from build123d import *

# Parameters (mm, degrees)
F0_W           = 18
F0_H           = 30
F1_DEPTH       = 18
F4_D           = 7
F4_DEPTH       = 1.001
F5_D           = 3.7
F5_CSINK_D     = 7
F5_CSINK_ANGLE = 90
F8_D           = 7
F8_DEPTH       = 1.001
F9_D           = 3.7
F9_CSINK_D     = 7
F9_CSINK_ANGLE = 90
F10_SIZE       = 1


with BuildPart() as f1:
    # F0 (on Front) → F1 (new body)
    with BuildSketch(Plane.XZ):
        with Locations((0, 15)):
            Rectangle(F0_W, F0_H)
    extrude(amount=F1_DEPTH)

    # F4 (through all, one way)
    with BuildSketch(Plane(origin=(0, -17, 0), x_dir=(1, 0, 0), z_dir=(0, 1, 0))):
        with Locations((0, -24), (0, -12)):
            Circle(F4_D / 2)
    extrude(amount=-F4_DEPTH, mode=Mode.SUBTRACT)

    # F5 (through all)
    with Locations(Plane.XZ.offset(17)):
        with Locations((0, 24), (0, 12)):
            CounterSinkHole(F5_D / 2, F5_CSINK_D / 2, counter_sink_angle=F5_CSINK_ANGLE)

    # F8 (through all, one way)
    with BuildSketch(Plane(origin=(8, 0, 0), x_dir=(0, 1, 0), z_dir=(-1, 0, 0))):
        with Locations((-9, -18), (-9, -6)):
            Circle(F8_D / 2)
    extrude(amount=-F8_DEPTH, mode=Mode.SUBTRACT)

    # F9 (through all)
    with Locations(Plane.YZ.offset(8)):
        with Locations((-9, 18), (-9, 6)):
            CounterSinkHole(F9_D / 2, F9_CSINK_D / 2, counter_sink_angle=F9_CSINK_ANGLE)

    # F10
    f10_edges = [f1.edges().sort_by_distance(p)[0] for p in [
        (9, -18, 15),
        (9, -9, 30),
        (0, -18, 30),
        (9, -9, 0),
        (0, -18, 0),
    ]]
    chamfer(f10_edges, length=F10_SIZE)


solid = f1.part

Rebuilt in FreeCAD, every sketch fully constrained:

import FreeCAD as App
import Part
import Sketcher
Q = App.Units.Quantity


def edges_at(feature, points):
    """Names of the edges that pass closest to the given points."""
    edges = feature.Shape.Edges
    near = lambda p: min(range(len(edges)), key=lambda i: edges[i].distToShape(Part.Vertex(*p))[0])
    return sorted({f"Edge{near(p) + 1}" for p in points})

doc = App.newDocument("Part")
body = doc.addObject("PartDesign::Body", "Body")

# Sketch on XZ plane
sketch1 = body.newObject("Sketcher::SketchObject", "Sketch")
sketch1.AttachmentSupport = (doc.getObject("XZ_Plane"), [""])
sketch1.MapMode = "FlatFace"
sketch1.addGeometry([
    Part.LineSegment(App.Vector(-9, 30, 0), App.Vector(-9, 0, 0)),
    Part.LineSegment(App.Vector(-9, 0, 0), App.Vector(9, 0, 0)),
    Part.LineSegment(App.Vector(9, 0, 0), App.Vector(9, 30, 0)),
    Part.LineSegment(App.Vector(9, 30, 0), App.Vector(-9, 30, 0)),
], False)
sketch1.addConstraint([
    Sketcher.Constraint("Coincident", 0, 2, 1, 1),
    Sketcher.Constraint("Coincident", 1, 2, 2, 1),
    Sketcher.Constraint("Coincident", 2, 2, 3, 1),
    Sketcher.Constraint("Coincident", 3, 2, 0, 1),
    Sketcher.Constraint("Vertical", 0),
    Sketcher.Constraint("Horizontal", 1),
    Sketcher.Constraint("Vertical", 2),
    Sketcher.Constraint("Horizontal", 3),
    Sketcher.Constraint("Symmetric", 0, 2, 1, 2, -1, 1),
    Sketcher.Constraint("DistanceX", 1, 1, 1, 2, Q("18 mm")),
    Sketcher.Constraint("DistanceY", 0, 2, 0, 1, Q("30 mm")),
])
pad1 = body.newObject("PartDesign::Pad", "Pad")
pad1.Profile = sketch1
pad1.Length = 18

# Sketch on XZ plane
sketch2 = body.newObject("Sketcher::SketchObject", "Sketch001")
sketch2.AttachmentSupport = (doc.getObject("XZ_Plane"), [""])
sketch2.MapMode = "FlatFace"
sketch2.AttachmentOffset = App.Placement(App.Vector(0, 0, 17), App.Rotation())
sketch2.addGeometry([
    Part.Circle(App.Vector(0, 12, 0), App.Vector(0, 0, 1), 3.5),
    Part.Circle(App.Vector(0, 24, 0), App.Vector(0, 0, 1), 3.5),
], False)
sketch2.addConstraint([
    Sketcher.Constraint("Equal", 0, 1),
    Sketcher.Constraint("PointOnObject", 0, 3, -2),
    Sketcher.Constraint("PointOnObject", 1, 3, -2),
    Sketcher.Constraint("Diameter", 0, Q("7 mm")),
    Sketcher.Constraint("DistanceY", -1, 1, 0, 3, Q("12 mm")),
    Sketcher.Constraint("DistanceY", -1, 1, 1, 3, Q("24 mm")),
])
pocket1 = body.newObject("PartDesign::Pocket", "Pocket")
pocket1.Profile = sketch2
pocket1.Type = "ThroughAll"
pocket1.Reversed = True

# Sketch on XZ plane
sketch3 = body.newObject("Sketcher::SketchObject", "Sketch002")
sketch3.AttachmentSupport = (doc.getObject("XZ_Plane"), [""])
sketch3.MapMode = "FlatFace"
sketch3.AttachmentOffset = App.Placement(App.Vector(0, 0, 17), App.Rotation())
sketch3.addGeometry([
    Part.Circle(App.Vector(0, 24, 0), App.Vector(0, 0, 1), 1.85),
    Part.Circle(App.Vector(0, 12, 0), App.Vector(0, 0, 1), 1.85),
], False)
sketch3.addConstraint([
    Sketcher.Constraint("Equal", 0, 1),
    Sketcher.Constraint("PointOnObject", 0, 3, -2),
    Sketcher.Constraint("PointOnObject", 1, 3, -2),
    Sketcher.Constraint("Diameter", 0, Q("3.7 mm")),
    Sketcher.Constraint("DistanceY", -1, 1, 0, 3, Q("24 mm")),
    Sketcher.Constraint("DistanceY", -1, 1, 1, 3, Q("12 mm")),
])
doc.recompute()
hole = body.newObject("PartDesign::Hole", "Hole")
hole.Profile = sketch3
hole.ThreadType = "None"
hole.Diameter = 3.7
hole.DepthType = "ThroughAll"
hole.HoleCutType = "Countersink"
hole.HoleCutDiameter = 7
hole.HoleCutCountersinkAngle = 90

# Sketch on YZ plane
sketch4 = body.newObject("Sketcher::SketchObject", "Sketch003")
sketch4.AttachmentSupport = (doc.getObject("YZ_Plane"), [""])
sketch4.MapMode = "FlatFace"
sketch4.AttachmentOffset = App.Placement(App.Vector(0, 0, 8), App.Rotation())
sketch4.addGeometry([
    Part.Circle(App.Vector(-9, 6, 0), App.Vector(0, 0, 1), 3.5),
    Part.Circle(App.Vector(-9, 18, 0), App.Vector(0, 0, 1), 3.5),
], False)
sketch4.addConstraint([
    Sketcher.Constraint("Equal", 0, 1),
    Sketcher.Constraint("Vertical", 0, 3, 1, 3),
    Sketcher.Constraint("Diameter", 0, Q("7 mm")),
    Sketcher.Constraint("DistanceX", 0, 3, -1, 1, Q("9 mm")),
    Sketcher.Constraint("DistanceY", -1, 1, 0, 3, Q("6 mm")),
    Sketcher.Constraint("DistanceY", -1, 1, 1, 3, Q("18 mm")),
])
pocket2 = body.newObject("PartDesign::Pocket", "Pocket001")
pocket2.Profile = sketch4
pocket2.Type = "ThroughAll"
pocket2.Reversed = True

# Sketch on YZ plane
sketch5 = body.newObject("Sketcher::SketchObject", "Sketch004")
sketch5.AttachmentSupport = (doc.getObject("YZ_Plane"), [""])
sketch5.MapMode = "FlatFace"
sketch5.AttachmentOffset = App.Placement(App.Vector(0, 0, 8), App.Rotation())
sketch5.addGeometry([
    Part.Circle(App.Vector(-9, 18, 0), App.Vector(0, 0, 1), 1.85),
    Part.Circle(App.Vector(-9, 6, 0), App.Vector(0, 0, 1), 1.85),
], False)
sketch5.addConstraint([
    Sketcher.Constraint("Equal", 0, 1),
    Sketcher.Constraint("Vertical", 0, 3, 1, 3),
    Sketcher.Constraint("Diameter", 0, Q("3.7 mm")),
    Sketcher.Constraint("DistanceX", 0, 3, -1, 1, Q("9 mm")),
    Sketcher.Constraint("DistanceY", -1, 1, 0, 3, Q("18 mm")),
    Sketcher.Constraint("DistanceY", -1, 1, 1, 3, Q("6 mm")),
])
doc.recompute()
hole2 = body.newObject("PartDesign::Hole", "Hole001")
hole2.Profile = sketch5
hole2.ThreadType = "None"
hole2.Diameter = 3.7
hole2.DepthType = "ThroughAll"
hole2.HoleCutType = "Countersink"
hole2.HoleCutDiameter = 7
hole2.HoleCutCountersinkAngle = 90
doc.recompute()

chamfer = body.newObject("PartDesign::Chamfer", "Chamfer")
chamfer.Base = (hole2, edges_at(hole2, [
    (9, -18, 15),
    (9, -9, 30),
    (0, -18, 30),
    (9, -9, 0),
    (0, -18, 0),
]))
chamfer.Size = 1

doc.recompute()
